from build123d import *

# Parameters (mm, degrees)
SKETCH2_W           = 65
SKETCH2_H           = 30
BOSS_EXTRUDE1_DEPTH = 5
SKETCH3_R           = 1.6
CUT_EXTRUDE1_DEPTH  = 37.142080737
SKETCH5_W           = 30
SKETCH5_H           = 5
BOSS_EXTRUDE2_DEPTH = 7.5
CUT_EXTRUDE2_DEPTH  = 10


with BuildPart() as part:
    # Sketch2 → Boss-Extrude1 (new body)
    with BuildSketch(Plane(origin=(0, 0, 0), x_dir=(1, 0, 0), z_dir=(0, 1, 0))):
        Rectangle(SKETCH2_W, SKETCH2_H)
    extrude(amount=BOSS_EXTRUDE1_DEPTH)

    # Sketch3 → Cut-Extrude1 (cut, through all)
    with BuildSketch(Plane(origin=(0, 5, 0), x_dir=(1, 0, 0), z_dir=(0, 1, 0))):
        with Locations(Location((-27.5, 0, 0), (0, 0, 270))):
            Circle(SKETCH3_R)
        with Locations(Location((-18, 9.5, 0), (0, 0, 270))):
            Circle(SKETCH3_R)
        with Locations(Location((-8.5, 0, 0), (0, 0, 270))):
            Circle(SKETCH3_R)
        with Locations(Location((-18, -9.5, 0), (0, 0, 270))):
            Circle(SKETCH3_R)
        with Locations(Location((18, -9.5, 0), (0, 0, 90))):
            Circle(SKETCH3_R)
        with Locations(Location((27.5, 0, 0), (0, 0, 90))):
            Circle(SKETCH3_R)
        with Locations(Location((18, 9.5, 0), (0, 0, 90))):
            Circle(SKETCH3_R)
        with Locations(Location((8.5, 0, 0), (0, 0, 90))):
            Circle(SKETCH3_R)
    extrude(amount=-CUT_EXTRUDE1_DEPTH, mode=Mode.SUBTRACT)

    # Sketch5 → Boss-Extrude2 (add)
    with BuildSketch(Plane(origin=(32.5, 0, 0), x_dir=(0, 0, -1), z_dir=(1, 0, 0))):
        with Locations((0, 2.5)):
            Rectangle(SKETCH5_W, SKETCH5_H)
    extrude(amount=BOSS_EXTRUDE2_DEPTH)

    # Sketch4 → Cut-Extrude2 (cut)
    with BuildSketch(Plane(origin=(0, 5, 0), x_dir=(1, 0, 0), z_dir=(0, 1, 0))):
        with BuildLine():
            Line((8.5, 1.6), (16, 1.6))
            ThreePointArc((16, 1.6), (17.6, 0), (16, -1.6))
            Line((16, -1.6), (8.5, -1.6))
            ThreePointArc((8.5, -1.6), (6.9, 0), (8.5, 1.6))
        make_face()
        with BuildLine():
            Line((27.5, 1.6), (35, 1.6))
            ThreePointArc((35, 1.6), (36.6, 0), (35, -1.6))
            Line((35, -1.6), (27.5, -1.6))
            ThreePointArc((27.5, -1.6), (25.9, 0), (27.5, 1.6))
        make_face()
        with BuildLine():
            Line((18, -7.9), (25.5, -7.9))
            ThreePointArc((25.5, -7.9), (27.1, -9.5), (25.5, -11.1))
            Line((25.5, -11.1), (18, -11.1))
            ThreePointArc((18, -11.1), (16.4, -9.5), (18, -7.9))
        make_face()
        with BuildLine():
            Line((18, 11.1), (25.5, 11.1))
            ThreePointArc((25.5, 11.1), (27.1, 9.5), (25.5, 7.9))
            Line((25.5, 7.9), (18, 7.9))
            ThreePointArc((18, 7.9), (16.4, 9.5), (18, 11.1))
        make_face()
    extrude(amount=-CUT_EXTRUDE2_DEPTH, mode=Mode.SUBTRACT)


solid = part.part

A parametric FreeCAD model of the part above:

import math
import FreeCAD as App
import Part
import Sketcher

V = App.Vector
Q = App.Units.Quantity


def add_polygon(sketch, points):
    """Adds a closed chain of lines whose ends are joined by coincident constraints."""
    first, n = sketch.GeometryCount, len(points)
    for a, b in zip(points, points[1:] + points[:1]):
        sketch.addGeometry(Part.LineSegment(App.Vector(*a, 0), App.Vector(*b, 0)), False)
    for i in range(n):
        sketch.addConstraint(Sketcher.Constraint("Coincident", first + i, 2, first + (i + 1) % n, 1))

doc = App.newDocument("Part")
params = doc.addObject("Spreadsheet::Sheet", "Params")
for row, (alias, value) in enumerate([
    ("sketch1_width", "65 mm"),
    ("sketch1_height", "30 mm"),
    ("pad1_length", "5 mm"),
    ("sketch2_diameter", "3.2 mm"),
    ("sketch3_width", "5 mm"),
    ("sketch3_height", "30 mm"),
    ("pad2_length", "7.5 mm"),
    ("sketch4_radius", "1.6 mm"),
    ("sketch4_width", "7.5 mm"),
    ("pocket2_length", "10 mm"),
], start=1):
    params.set(f"A{row}", alias)
    params.set(f"B{row}", "=" + value)
    params.setAlias(f"B{row}", alias)

body = doc.addObject("PartDesign::Body", "Body")

sketch1 = body.newObject("Sketcher::SketchObject", "Sketch")
sketch1.AttachmentSupport = (doc.getObject("XZ_Plane"), [""])
sketch1.MapMode = "FlatFace"
add_polygon(sketch1, [(-32, -15), (-32, 15), (32, 15), (32, -15)])
sketch1.addConstraint(Sketcher.Constraint("Vertical", 0))
sketch1.addConstraint(Sketcher.Constraint("Horizontal", 1))
sketch1.addConstraint(Sketcher.Constraint("Vertical", 2))
sketch1.addConstraint(Sketcher.Constraint("Horizontal", 3))
sketch1.addConstraint(Sketcher.Constraint("Symmetric", 0, 2, 2, 2, -1, 1))
sketch1.addConstraint(Sketcher.Constraint("DistanceX", 1, 1, 1, 2, Q("65 mm")))
sketch1.addConstraint(Sketcher.Constraint("DistanceY", 0, 1, 0, 2, Q("30 mm")))
sketch1.setExpression("Constraints[9]", "Params.sketch1_width")
sketch1.setExpression("Constraints[10]", "Params.sketch1_height")
pad1 = body.newObject("PartDesign::Pad", "Pad")
pad1.Profile = sketch1
pad1.setExpression("Length", "Params.pad1_length")
pad1.Reversed = True

sketch2 = body.newObject("Sketcher::SketchObject", "Sketch001")
sketch2.AttachmentSupport = (doc.getObject("XZ_Plane"), [""])
sketch2.MapMode = "FlatFace"
sketch2.AttachmentOffset = App.Placement(V(0, 0, -5), App.Rotation())
sketch2.addGeometry(Part.Circle(V(-27.5, 0, 0), V(0, 0, 1), 1.6), False)
sketch2.addGeometry(Part.Circle(V(-18, -9.5, 0), V(0, 0, 1), 1.6), False)
sketch2.addGeometry(Part.Circle(V(-8.5, 0, 0), V(0, 0, 1), 1.6), False)
sketch2.addGeometry(Part.Circle(V(-18, 9.5, 0), V(0, 0, 1), 1.6), False)
sketch2.addGeometry(Part.Circle(V(18, 9.5, 0), V(0, 0, 1), 1.6), False)
sketch2.addGeometry(Part.Circle(V(27.5, 0, 0), V(0, 0, 1), 1.6), False)
sketch2.addGeometry(Part.Circle(V(18, -9.5, 0), V(0, 0, 1), 1.6), False)
sketch2.addGeometry(Part.Circle(V(8.5, 0, 0), V(0, 0, 1), 1.6), False)
sketch2.addConstraint(Sketcher.Constraint("Equal", 0, 1))
sketch2.addConstraint(Sketcher.Constraint("Equal", 1, 2))
sketch2.addConstraint(Sketcher.Constraint("Equal", 2, 3))
sketch2.addConstraint(Sketcher.Constraint("Equal", 3, 4))
sketch2.addConstraint(Sketcher.Constraint("Equal", 4, 5))
sketch2.addConstraint(Sketcher.Constraint("Equal", 5, 6))
sketch2.addConstraint(Sketcher.Constraint("Equal", 6, 7))
sketch2.addConstraint(Sketcher.Constraint("Symmetric", 1, 3, 4, 3, -1, 1))
sketch2.addConstraint(Sketcher.Constraint("Symmetric", 0, 3, 5, 3, -1, 1))
sketch2.addConstraint(Sketcher.Constraint("Symmetric", 3, 3, 6, 3, -1, 1))
sketch2.addConstraint(Sketcher.Constraint("Symmetric", 2, 3, 7, 3, -1, 1))
sketch2.addConstraint(Sketcher.Constraint("Symmetric", 3, 3, 4, 3, -2))
sketch2.addConstraint(Sketcher.Constraint("PointOnObject", 0, 3, -1))
sketch2.addConstraint(Sketcher.Constraint("PointOnObject", 2, 3, -1))
sketch2.addConstraint(Sketcher.Constraint("Diameter", 0, Q("3.2 mm")))
sketch2.addConstraint(Sketcher.Constraint("DistanceX", 1, 3, -1, 1, Q("18 mm")))
sketch2.addConstraint(Sketcher.Constraint("DistanceX", 0, 3, 2, 3, Q("19 mm")))
sketch2.addConstraint(Sketcher.Constraint("DistanceY", 1, 3, 3, 3, Q("19 mm")))
sketch2.addConstraint(Sketcher.Constraint("DistanceX", 2, 3, 5, 3, Q("36 mm")))
sketch2.setExpression("Constraints[14]", "Params.sketch2_diameter")
pocket1 = body.newObject("PartDesign::Pocket", "Pocket")
pocket1.Profile = sketch2
pocket1.Type = "ThroughAll"
pocket1.Reversed = True

sketch3 = body.newObject("Sketcher::SketchObject", "Sketch002")
sketch3.AttachmentSupport = (doc.getObject("YZ_Plane"), [""])
sketch3.MapMode = "FlatFace"
sketch3.AttachmentOffset = App.Placement(V(0, 0, 32.5), App.Rotation())
add_polygon(sketch3, [(5, 15), (0, 15), (0, -15), (5, -15)])
sketch3.addConstraint(Sketcher.Constraint("Horizontal", 0))
sketch3.addConstraint(Sketcher.Constraint("Vertical", 1))
sketch3.addConstraint(Sketcher.Constraint("Horizontal", 2))
sketch3.addConstraint(Sketcher.Constraint("Vertical", 3))
sketch3.addConstraint(Sketcher.Constraint("Symmetric", 0, 2, 1, 2, -1, 1))
sketch3.addConstraint(Sketcher.Constraint("DistanceX", 0, 2, 0, 1, Q("5 mm")))
sketch3.addConstraint(Sketcher.Constraint("DistanceY", 1, 2, 1, 1, Q("30 mm")))
sketch3.setExpression("Constraints[9]", "Params.sketch3_width")
sketch3.setExpression("Constraints[10]", "Params.sketch3_height")
pad2 = body.newObject("PartDesign::Pad", "Pad001")
pad2.Profile = sketch3
pad2.setExpression("Length", "Params.pad2_length")

sketch4 = body.newObject("Sketcher::SketchObject", "Sketch003")
sketch4.AttachmentSupport = (doc.getObject("XZ_Plane"), [""])
sketch4.MapMode = "FlatFace"
sketch4.AttachmentOffset = App.Placement(V(0, 0, -5), App.Rotation())
sketch4.addGeometry(Part.LineSegment(V(16, -1.6, 0), V(8.5, -1.6, 0)), False)
sketch4.addGeometry(Part.ArcOfCircle(Part.Circle(V(8.5, 0, 0), V(0, 0, 1), 1.6), math.radians(90), math.radians(270)), False)
sketch4.addGeometry(Part.LineSegment(V(8.5, 1.6, 0), V(16, 1.6, 0)), False)
sketch4.addGeometry(Part.ArcOfCircle(Part.Circle(V(16, 0, 0), V(0, 0, 1), 1.6), math.radians(-90), math.radians(90)), False)
sketch4.addGeometry(Part.LineSegment(V(35, -1.6, 0), V(27.5, -1.6, 0)), False)
sketch4.addGeometry(Part.ArcOfCircle(Part.Circle(V(27.5, 0, 0), V(0, 0, 1), 1.6), math.radians(90), math.radians(270)), False)
sketch4.addGeometry(Part.LineSegment(V(27.5, 1.6, 0), V(35, 1.6, 0)), False)
sketch4.addGeometry(Part.ArcOfCircle(Part.Circle(V(35, 0, 0), V(0, 0, 1), 1.6), math.radians(-90), math.radians(90)), False)
sketch4.addGeometry(Part.LineSegment(V(25.5, 7.9, 0), V(18, 7.9, 0)), False)
sketch4.addGeometry(Part.ArcOfCircle(Part.Circle(V(18, 9.5, 0), V(0, 0, 1), 1.6), math.radians(90), math.radians(270)), False)
sketch4.addGeometry(Part.LineSegment(V(18, 11.1, 0), V(25.5, 11.1, 0)), False)
sketch4.addGeometry(Part.ArcOfCircle(Part.Circle(V(25.5, 9.5, 0), V(0, 0, 1), 1.6), math.radians(-90), math.radians(90)), False)
sketch4.addGeometry(Part.LineSegment(V(25.5, -11.1, 0), V(18, -11.1, 0)), False)
sketch4.addGeometry(Part.ArcOfCircle(Part.Circle(V(18, -9.5, 0), V(0, 0, 1), 1.6), math.radians(90), math.radians(270)), False)
sketch4.addGeometry(Part.LineSegment(V(18, -7.9, 0), V(25.5, -7.9, 0)), False)
sketch4.addGeometry(Part.ArcOfCircle(Part.Circle(V(25.5, -9.5, 0), V(0, 0, 1), 1.6), math.radians(-90), math.radians(90)), False)
sketch4.addConstraint(Sketcher.Constraint("Tangent", 0, 2, 1, 2))
sketch4.addConstraint(Sketcher.Constraint("Tangent", 1, 1, 2, 1))
sketch4.addConstraint(Sketcher.Constraint("Tangent", 2, 2, 3, 2))
sketch4.addConstraint(Sketcher.Constraint("Tangent", 3, 1, 0, 1))
sketch4.addConstraint(Sketcher.Constraint("Tangent", 4, 2, 5, 2))
sketch4.addConstraint(Sketcher.Constraint("Tangent", 5, 1, 6, 1))
sketch4.addConstraint(Sketcher.Constraint("Tangent", 6, 2, 7, 2))
sketch4.addConstraint(Sketcher.Constraint("Tangent", 7, 1, 4, 1))
sketch4.addConstraint(Sketcher.Constraint("Tangent", 8, 2, 9, 2))
sketch4.addConstraint(Sketcher.Constraint("Tangent", 9, 1, 10, 1))
sketch4.addConstraint(Sketcher.Constraint("Tangent", 10, 2, 11, 2))
sketch4.addConstraint(Sketcher.Constraint("Tangent", 11, 1, 8, 1))
sketch4.addConstraint(Sketcher.Constraint("Tangent", 12, 2, 13, 2))
sketch4.addConstraint(Sketcher.Constraint("Tangent", 13, 1, 14, 1))
sketch4.addConstraint(Sketcher.Constraint("Tangent", 14, 2, 15, 2))
sketch4.addConstraint(Sketcher.Constraint("Tangent", 15, 1, 12, 1))
sketch4.addConstraint(Sketcher.Constraint("Horizontal", 0))
sketch4.addConstraint(Sketcher.Constraint("Horizontal", 2))
sketch4.addConstraint(Sketcher.Constraint("Horizontal", 4))
sketch4.addConstraint(Sketcher.Constraint("Horizontal", 6))
sketch4.addConstraint(Sketcher.Constraint("Horizontal", 8))
sketch4.addConstraint(Sketcher.Constraint("Horizontal", 10))
sketch4.addConstraint(Sketcher.Constraint("Horizontal", 12))
sketch4.addConstraint(Sketcher.Constraint("Horizontal", 14))
sketch4.addConstraint(Sketcher.Constraint("Equal", 3, 5))
sketch4.addConstraint(Sketcher.Constraint("Equal", 7, 9))
sketch4.addConstraint(Sketcher.Constraint("Equal", 11, 13))
sketch4.addConstraint(Sketcher.Constraint("Symmetric", 9, 3, 13, 3, -1))
sketch4.addConstraint(Sketcher.Constraint("PointOnObject", 1, 3, -1))
sketch4.addConstraint(Sketcher.Constraint("PointOnObject", 5, 3, -1))
sketch4.addConstraint(Sketcher.Constraint("Vertical", 11, 3, 15, 3))
sketch4.addConstraint(Sketcher.Constraint("Equal", 2, 4))
sketch4.addConstraint(Sketcher.Constraint("Equal", 6, 8))
sketch4.addConstraint(Sketcher.Constraint("Radius", 1, Q("1.6 mm")))
sketch4.addConstraint(Sketcher.Constraint("DistanceX", 0, 2, 0, 1, Q("7.5 mm")))
sketch4.addConstraint(Sketcher.Constraint("DistanceX", -1, 1, 3, 3, Q("16 mm")))
sketch4.addConstraint(Sketcher.Constraint("DistanceX", -1, 1, 7, 3, Q("35 mm")))
sketch4.addConstraint(Sketcher.Constraint("DistanceX", -1, 1, 9, 3, Q("18 mm")))
sketch4.addConstraint(Sketcher.Constraint("DistanceY", 13, 3, 9, 3, Q("19 mm")))
sketch4.setExpression("Constraints[33]", "Params.sketch4_radius")
sketch4.setExpression("Constraints[34]", "Params.sketch4_width")
pocket2 = body.newObject("PartDesign::Pocket", "Pocket001")
pocket2.Profile = sketch4
pocket2.setExpression("Length", "Params.pocket2_length")
pocket2.Reversed = True

doc.recompute()
